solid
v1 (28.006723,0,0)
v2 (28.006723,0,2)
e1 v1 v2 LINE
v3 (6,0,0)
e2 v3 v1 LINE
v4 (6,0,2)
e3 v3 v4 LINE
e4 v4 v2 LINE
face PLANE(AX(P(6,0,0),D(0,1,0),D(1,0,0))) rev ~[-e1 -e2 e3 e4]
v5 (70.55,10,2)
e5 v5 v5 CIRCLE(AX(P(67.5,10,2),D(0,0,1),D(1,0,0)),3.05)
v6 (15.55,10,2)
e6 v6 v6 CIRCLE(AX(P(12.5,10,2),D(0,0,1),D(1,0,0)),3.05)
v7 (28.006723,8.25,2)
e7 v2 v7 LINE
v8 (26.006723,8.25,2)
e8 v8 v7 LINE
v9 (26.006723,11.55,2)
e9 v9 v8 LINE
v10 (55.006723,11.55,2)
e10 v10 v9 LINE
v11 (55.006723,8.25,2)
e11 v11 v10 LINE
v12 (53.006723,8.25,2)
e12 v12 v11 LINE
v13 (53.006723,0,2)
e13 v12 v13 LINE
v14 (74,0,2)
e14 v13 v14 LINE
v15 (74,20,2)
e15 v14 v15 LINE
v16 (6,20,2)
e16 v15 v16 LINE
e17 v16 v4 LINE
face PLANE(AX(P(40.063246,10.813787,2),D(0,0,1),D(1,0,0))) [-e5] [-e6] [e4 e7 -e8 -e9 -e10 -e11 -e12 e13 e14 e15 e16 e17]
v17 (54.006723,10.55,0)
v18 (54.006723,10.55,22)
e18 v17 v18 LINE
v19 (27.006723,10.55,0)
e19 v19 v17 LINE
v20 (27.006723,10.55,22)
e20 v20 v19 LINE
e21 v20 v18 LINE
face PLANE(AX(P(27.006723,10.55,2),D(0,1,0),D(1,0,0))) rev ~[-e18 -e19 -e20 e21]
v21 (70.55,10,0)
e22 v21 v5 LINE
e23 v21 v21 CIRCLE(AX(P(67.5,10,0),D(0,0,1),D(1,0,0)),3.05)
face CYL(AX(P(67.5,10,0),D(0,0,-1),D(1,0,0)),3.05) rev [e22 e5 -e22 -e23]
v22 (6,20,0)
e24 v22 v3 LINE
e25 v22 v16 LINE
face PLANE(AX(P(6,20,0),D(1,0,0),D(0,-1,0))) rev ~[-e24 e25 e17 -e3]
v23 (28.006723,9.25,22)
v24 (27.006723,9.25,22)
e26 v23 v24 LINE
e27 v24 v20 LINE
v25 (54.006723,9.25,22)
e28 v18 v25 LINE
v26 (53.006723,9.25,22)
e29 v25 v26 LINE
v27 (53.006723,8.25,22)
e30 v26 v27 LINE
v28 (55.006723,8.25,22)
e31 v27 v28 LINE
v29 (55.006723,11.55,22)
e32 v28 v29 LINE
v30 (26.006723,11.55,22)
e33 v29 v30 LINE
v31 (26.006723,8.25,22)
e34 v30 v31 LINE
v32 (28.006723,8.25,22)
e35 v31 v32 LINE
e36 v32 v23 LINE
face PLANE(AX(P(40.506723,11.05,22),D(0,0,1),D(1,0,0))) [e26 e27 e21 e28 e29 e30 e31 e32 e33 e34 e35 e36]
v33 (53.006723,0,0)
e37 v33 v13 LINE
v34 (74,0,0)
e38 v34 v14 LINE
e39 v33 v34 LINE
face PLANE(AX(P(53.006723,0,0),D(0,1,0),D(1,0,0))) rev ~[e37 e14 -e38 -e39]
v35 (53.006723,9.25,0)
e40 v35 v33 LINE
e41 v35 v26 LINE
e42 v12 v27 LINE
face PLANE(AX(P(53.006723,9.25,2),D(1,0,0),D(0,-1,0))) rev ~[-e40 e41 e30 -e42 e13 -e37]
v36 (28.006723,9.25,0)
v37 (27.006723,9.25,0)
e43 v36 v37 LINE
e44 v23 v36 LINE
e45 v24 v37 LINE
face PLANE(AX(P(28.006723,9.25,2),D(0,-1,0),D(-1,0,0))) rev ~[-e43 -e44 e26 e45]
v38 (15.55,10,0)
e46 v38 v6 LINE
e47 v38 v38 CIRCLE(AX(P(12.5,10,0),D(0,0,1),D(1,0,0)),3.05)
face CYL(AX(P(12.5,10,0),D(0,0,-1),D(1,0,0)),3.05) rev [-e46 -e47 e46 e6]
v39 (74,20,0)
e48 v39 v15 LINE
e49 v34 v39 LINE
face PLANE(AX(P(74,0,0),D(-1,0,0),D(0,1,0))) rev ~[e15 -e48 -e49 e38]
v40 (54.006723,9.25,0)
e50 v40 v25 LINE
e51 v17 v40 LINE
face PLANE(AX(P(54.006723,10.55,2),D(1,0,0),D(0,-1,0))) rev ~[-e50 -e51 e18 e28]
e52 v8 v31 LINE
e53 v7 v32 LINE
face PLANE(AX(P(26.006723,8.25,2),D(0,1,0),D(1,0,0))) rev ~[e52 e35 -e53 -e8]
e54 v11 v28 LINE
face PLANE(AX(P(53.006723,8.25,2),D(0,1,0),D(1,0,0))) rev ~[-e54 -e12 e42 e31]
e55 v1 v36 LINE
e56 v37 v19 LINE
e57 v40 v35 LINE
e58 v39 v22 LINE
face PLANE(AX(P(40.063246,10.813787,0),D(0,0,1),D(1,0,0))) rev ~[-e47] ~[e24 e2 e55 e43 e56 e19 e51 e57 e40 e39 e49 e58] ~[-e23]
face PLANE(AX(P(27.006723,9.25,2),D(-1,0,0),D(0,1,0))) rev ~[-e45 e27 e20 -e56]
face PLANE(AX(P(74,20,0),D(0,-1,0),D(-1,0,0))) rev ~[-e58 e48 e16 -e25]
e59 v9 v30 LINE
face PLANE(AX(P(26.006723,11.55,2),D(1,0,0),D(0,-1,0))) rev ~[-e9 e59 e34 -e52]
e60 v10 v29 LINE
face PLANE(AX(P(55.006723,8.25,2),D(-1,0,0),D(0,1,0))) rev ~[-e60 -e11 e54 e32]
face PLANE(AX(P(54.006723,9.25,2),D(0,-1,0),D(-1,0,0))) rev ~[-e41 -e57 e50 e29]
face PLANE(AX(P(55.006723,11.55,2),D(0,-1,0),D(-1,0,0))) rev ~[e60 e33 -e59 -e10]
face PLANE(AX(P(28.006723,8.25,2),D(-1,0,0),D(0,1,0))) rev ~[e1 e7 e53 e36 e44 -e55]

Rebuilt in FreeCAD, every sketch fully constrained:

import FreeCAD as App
import Part
import Sketcher

V = App.Vector
Q = App.Units.Quantity


def add_polygon(sketch, points):
    """Adds a closed chain of lines whose ends are joined by coincident constraints."""
    first, n = sketch.GeometryCount, len(points)
    for a, b in zip(points, points[1:] + points[:1]):
        sketch.addGeometry(Part.LineSegment(App.Vector(*a, 0), App.Vector(*b, 0)), False)
    for i in range(n):
        sketch.addConstraint(Sketcher.Constraint("Coincident", first + i, 2, first + (i + 1) % n, 1))

doc = App.newDocument("Part")
params = doc.addObject("Spreadsheet::Sheet", "Params")
for row, (alias, value) in enumerate([
    ("sketch1_diameter", "6.1 mm"),
    ("sketch1_width", "1 mm"),
    ("sketch1_width2", "27 mm"),
    ("sketch1_width3", "68 mm"),
    ("sketch1_height", "20 mm"),
    ("pad1_length", "2 mm"),
    ("sketch2_width", "27 mm"),
    ("sketch2_width2", "1 mm"),
    ("sketch2_width3", "2 mm"),
    ("sketch2_height", "1.3 mm"),
    ("sketch2_height2", "3.3 mm"),
    ("pad2_length", "20 mm"),
], start=1):
    params.set(f"A{row}", alias)
    params.set(f"B{row}", "=" + value)
    params.setAlias(f"B{row}", alias)

body = doc.addObject("PartDesign::Body", "Body")

sketch1 = doc.addObject("Sketcher::SketchObject", "Sketch")
body.addObject(sketch1)
sketch1.AttachmentSupport = (doc.XY_Plane, [""])
sketch1.MapMode = "FlatFace"
add_polygon(sketch1, [(6, 20), (6, 0), (28, 0), (28, 9.2), (27, 9.2), (27, 10.6), (54, 10.6), (54, 9.2), (53, 9.2), (53, 0), (74, 0), (74, 20)])
sketch1.addGeometry(Part.Circle(V(12.5, 10, 0), V(0, 0, 1), 3), False)
sketch1.addGeometry(Part.Circle(V(67.5, 10, 0), V(0, 0, 1), 3), False)
sketch1.addConstraint(Sketcher.Constraint("Vertical", 0))
sketch1.addConstraint(Sketcher.Constraint("Horizontal", 1))
sketch1.addConstraint(Sketcher.Constraint("Vertical", 2))
sketch1.addConstraint(Sketcher.Constraint("Horizontal", 3))
sketch1.addConstraint(Sketcher.Constraint("Vertical", 4))
sketch1.addConstraint(Sketcher.Constraint("Horizontal", 5))
sketch1.addConstraint(Sketcher.Constraint("Vertical", 6))
sketch1.addConstraint(Sketcher.Constraint("Horizontal", 7))
sketch1.addConstraint(Sketcher.Constraint("Vertical", 8))
sketch1.addConstraint(Sketcher.Constraint("Horizontal", 9))
sketch1.addConstraint(Sketcher.Constraint("Vertical", 10))
sketch1.addConstraint(Sketcher.Constraint("Horizontal", 11))
sketch1.addConstraint(Sketcher.Constraint("Equal", 12, 13))
sketch1.addConstraint(Sketcher.Constraint("PointOnObject", 0, 2, -1))
sketch1.addConstraint(Sketcher.Constraint("PointOnObject", 8, 2, -1))
sketch1.addConstraint(Sketcher.Constraint("Horizontal", 12, 3, 13, 3))
sketch1.addConstraint(Sketcher.Constraint("Horizontal", 3, 2, 6, 2))
sketch1.addConstraint(Sketcher.Constraint("Equal", 3, 7))
sketch1.addConstraint(Sketcher.Constraint("Diameter", 12, Q("6.1 mm")))
sketch1.addConstraint(Sketcher.Constraint("DistanceX", 3, 2, 3, 1, Q("1 mm")))
sketch1.addConstraint(Sketcher.Constraint("DistanceX", 5, 1, 5, 2, Q("27 mm")))
sketch1.addConstraint(Sketcher.Constraint("DistanceX", 11, 2, 11, 1, Q("68 mm")))
sketch1.addConstraint(Sketcher.Constraint("DistanceY", 0, 2, 0, 1, Q("20 mm")))
sketch1.addConstraint(Sketcher.Constraint("DistanceY", 4, 1, 4, 2, Q("1.3 mm")))
sketch1.addConstraint(Sketcher.Constraint("DistanceY", -1, 1, 12, 3, Q("10 mm")))
sketch1.addConstraint(Sketcher.Constraint("DistanceX", -1, 1, 0, 2, Q("6 mm")))
sketch1.addConstraint(Sketcher.Constraint("DistanceX", 12, 3, 13, 3, Q("55 mm")))
sketch1.addConstraint(Sketcher.Constraint("DistanceY", 2, 1, 2, 2, Q("9.25 mm")))
sketch1.addConstraint(Sketcher.Constraint("DistanceX", -1, 1, 12, 3, Q("12.5 mm")))
sketch1.addConstraint(Sketcher.Constraint("DistanceX", 1, 1, 1, 2, Q("22.006723 mm")))
sketch1.setExpression("Constraints[30]", "Params.sketch1_diameter")
sketch1.setExpression("Constraints[31]", "Params.sketch1_width")
sketch1.setExpression("Constraints[32]", "Params.sketch1_width2")
sketch1.setExpression("Constraints[33]", "Params.sketch1_width3")
sketch1.setExpression("Constraints[34]", "Params.sketch1_height")
pad1 = doc.addObject("PartDesign::Pad", "Pad")
body.addObject(pad1)
pad1.Profile = sketch1
pad1.setExpression("Length", "Params.pad1_length")

sketch2 = doc.addObject("Sketcher::SketchObject", "Sketch001")
body.addObject(sketch2)
sketch2.AttachmentSupport = (doc.XY_Plane, [""])
sketch2.MapMode = "FlatFace"
sketch2.AttachmentOffset = App.Placement(V(0, 0, 2), App.Rotation())
add_polygon(sketch2, [(27, 10.6), (54, 10.6), (54, 9.2), (53, 9.2), (53, 8.2), (55, 8.2), (55, 11.6), (26, 11.6), (26, 8.2), (28, 8.2), (28, 9.2), (27, 9.2)])
sketch2.addConstraint(Sketcher.Constraint("Horizontal", 0))
sketch2.addConstraint(Sketcher.Constraint("Vertical", 1))
sketch2.addConstraint(Sketcher.Constraint("Horizontal", 2))
sketch2.addConstraint(Sketcher.Constraint("Vertical", 3))
sketch2.addConstraint(Sketcher.Constraint("Horizontal", 4))
sketch2.addConstraint(Sketcher.Constraint("Vertical", 5))
sketch2.addConstraint(Sketcher.Constraint("Horizontal", 6))
sketch2.addConstraint(Sketcher.Constraint("Vertical", 7))
sketch2.addConstraint(Sketcher.Constraint("Horizontal", 8))
sketch2.addConstraint(Sketcher.Constraint("Vertical", 9))
sketch2.addConstraint(Sketcher.Constraint("Horizontal", 10))
sketch2.addConstraint(Sketcher.Constraint("Vertical", 11))
sketch2.addConstraint(Sketcher.Constraint("Horizontal", 4, 2, 7, 2))
sketch2.addConstraint(Sketcher.Constraint("Horizontal", 2, 2, 9, 2))
sketch2.addConstraint(Sketcher.Constraint("Equal", 4, 8))
sketch2.addConstraint(Sketcher.Constraint("Equal", 2, 10))
sketch2.addConstraint(Sketcher.Constraint("Equal", 10, 3))
sketch2.addConstraint(Sketcher.Constraint("DistanceX", 0, 1, 0, 2, Q("27 mm")))
sketch2.addConstraint(Sketcher.Constraint("DistanceX", 2, 2, 2, 1, Q("1 mm")))
sketch2.addConstraint(Sketcher.Constraint("DistanceX", 4, 1, 4, 2, Q("2 mm")))
sketch2.addConstraint(Sketcher.Constraint("DistanceY", 1, 2, 1, 1, Q("1.3 mm")))
sketch2.addConstraint(Sketcher.Constraint("DistanceY", 5, 1, 5, 2, Q("3.3 mm")))
sketch2.addConstraint(Sketcher.Constraint("DistanceY", -1, 1, 0, 2, Q("10.55 mm")))
sketch2.addConstraint(Sketcher.Constraint("DistanceX", -1, 1, 0, 2, Q("54.006723 mm")))
sketch2.setExpression("Constraints[29]", "Params.sketch2_width")
sketch2.setExpression("Constraints[30]", "Params.sketch2_width2")
sketch2.setExpression("Constraints[31]", "Params.sketch2_width3")
sketch2.setExpression("Constraints[32]", "Params.sketch2_height")
sketch2.setExpression("Constraints[33]", "Params.sketch2_height2")
pad2 = doc.addObject("PartDesign::Pad", "Pad001")
body.addObject(pad2)
pad2.Profile = sketch2
pad2.setExpression("Length", "Params.pad2_length")

doc.recompute()
